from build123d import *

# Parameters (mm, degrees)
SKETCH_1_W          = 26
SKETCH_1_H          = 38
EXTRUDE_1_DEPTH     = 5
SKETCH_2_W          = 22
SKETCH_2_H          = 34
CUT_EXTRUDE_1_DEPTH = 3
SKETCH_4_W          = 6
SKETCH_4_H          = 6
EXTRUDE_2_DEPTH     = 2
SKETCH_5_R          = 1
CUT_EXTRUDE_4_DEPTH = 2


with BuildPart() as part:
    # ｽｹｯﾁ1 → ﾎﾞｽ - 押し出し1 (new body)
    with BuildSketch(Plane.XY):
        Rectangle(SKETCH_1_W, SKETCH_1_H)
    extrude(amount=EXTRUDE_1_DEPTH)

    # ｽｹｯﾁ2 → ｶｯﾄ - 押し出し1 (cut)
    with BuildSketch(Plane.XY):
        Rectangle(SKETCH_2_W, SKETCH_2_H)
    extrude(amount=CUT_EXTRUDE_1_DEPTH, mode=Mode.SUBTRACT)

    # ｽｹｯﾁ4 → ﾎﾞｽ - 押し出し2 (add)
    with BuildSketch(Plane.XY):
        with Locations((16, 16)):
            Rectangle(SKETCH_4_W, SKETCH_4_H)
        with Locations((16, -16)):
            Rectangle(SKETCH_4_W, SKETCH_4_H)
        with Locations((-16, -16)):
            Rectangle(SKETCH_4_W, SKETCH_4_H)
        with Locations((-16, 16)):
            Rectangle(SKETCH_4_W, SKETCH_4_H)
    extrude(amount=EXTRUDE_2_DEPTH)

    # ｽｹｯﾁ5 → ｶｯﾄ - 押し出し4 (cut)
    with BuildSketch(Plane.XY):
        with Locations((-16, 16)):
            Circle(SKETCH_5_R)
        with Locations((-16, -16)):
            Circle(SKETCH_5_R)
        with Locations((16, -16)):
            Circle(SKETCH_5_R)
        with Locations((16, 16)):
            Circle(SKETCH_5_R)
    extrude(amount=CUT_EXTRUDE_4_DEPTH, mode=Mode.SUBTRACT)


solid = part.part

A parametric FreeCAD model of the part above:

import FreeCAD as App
import Part
import Sketcher


def add_polygon(sketch, points):
    """Adds a closed chain of lines whose ends are joined by coincident constraints."""
    first, n = sketch.GeometryCount, len(points)
    for a, b in zip(points, points[1:] + points[:1]):
        sketch.addGeometry(Part.LineSegment(App.Vector(*a, 0), App.Vector(*b, 0)), False)
    for i in range(n):
        sketch.addConstraint(Sketcher.Constraint("Coincident", first + i, 2, first + (i + 1) % n, 1))

doc = App.newDocument("Part")
params = doc.addObject("Spreadsheet::Sheet", "Params")
for row, (alias, value) in enumerate([
    ("sketch1_width", "26 mm"),
    ("sketch1_height", "38 mm"),
    ("pad1_length", "5 mm"),
    ("sketch2_width", "22 mm"),
    ("sketch2_height", "34 mm"),
    ("pocket1_length", "3 mm"),
    ("sketch3_width", "6 mm"),
    ("pad2_length", "2 mm"),
    ("sketch4_diameter", "2 mm"),
    ("pocket2_length", "2 mm"),
], start=1):
    params.set(f"A{row}", alias)
    params.set(f"B{row}", "=" + value)
    params.setAlias(f"B{row}", alias)

body = doc.addObject("PartDesign::Body", "Body")

# Sketch on XY plane
sketch1 = doc.addObject("Sketcher::SketchObject", "Sketch")
body.addObject(sketch1)
sketch1.AttachmentSupport = (doc.XY_Plane, [""])
sketch1.MapMode = "FlatFace"
add_polygon(sketch1, [(-13, 19), (-13, -19), (13, -19), (13, 19)])  # lines 0-3
sketch1.addConstraint(Sketcher.Constraint("Vertical", 0))
sketch1.addConstraint(Sketcher.Constraint("Horizontal", 1))
sketch1.addConstraint(Sketcher.Constraint("Vertical", 2))
sketch1.addConstraint(Sketcher.Constraint("Horizontal", 3))
sketch1.addConstraint(Sketcher.Constraint("Symmetric", 0, 2, 2, 2, -1, 1))
sketch1.addConstraint(Sketcher.Constraint("DistanceX", 1, 1, 1, 2, 26.0))
sketch1.addConstraint(Sketcher.Constraint("DistanceY", 0, 2, 0, 1, 38.0))
sketch1.setExpression("Constraints[9]", "Params.sketch1_width")
sketch1.setExpression("Constraints[10]", "Params.sketch1_height")
pad1 = doc.addObject("PartDesign::Pad", "Pad")
body.addObject(pad1)
pad1.Profile = sketch1
pad1.setExpression("Length", "Params.pad1_length")

# Sketch on XY plane
sketch2 = doc.addObject("Sketcher::SketchObject", "Sketch001")
body.addObject(sketch2)
sketch2.AttachmentSupport = (doc.XY_Plane, [""])
sketch2.MapMode = "FlatFace"
add_polygon(sketch2, [(-11, 17), (-11, -17), (11, -17), (11, 17)])  # lines 0-3
sketch2.addConstraint(Sketcher.Constraint("Vertical", 0))
sketch2.addConstraint(Sketcher.Constraint("Horizontal", 1))
sketch2.addConstraint(Sketcher.Constraint("Vertical", 2))
sketch2.addConstraint(Sketcher.Constraint("Horizontal", 3))
sketch2.addConstraint(Sketcher.Constraint("Symmetric", 0, 2, 2, 2, -1, 1))
sketch2.addConstraint(Sketcher.Constraint("DistanceX", 1, 1, 1, 2, 22.0))
sketch2.addConstraint(Sketcher.Constraint("DistanceY", 0, 2, 0, 1, 34.0))
sketch2.setExpression("Constraints[9]", "Params.sketch2_width")
sketch2.setExpression("Constraints[10]", "Params.sketch2_height")
pocket1 = doc.addObject("PartDesign::Pocket", "Pocket")
body.addObject(pocket1)
pocket1.Profile = sketch2
pocket1.setExpression("Length", "Params.pocket1_length")
pocket1.Reversed = True

# Sketch on XY plane
sketch3 = doc.addObject("Sketcher::SketchObject", "Sketch002")
body.addObject(sketch3)
sketch3.AttachmentSupport = (doc.XY_Plane, [""])
sketch3.MapMode = "FlatFace"
add_polygon(sketch3, [(13, 19), (13, 13), (19, 13), (19, 19)])  # lines 0-3
add_polygon(sketch3, [(13, -13), (13, -19), (19, -19), (19, -13)])  # lines 4-7
add_polygon(sketch3, [(-19, -13), (-19, -19), (-13, -19), (-13, -13)])  # lines 8-11
add_polygon(sketch3, [(-19, 19), (-19, 13), (-13, 13), (-13, 19)])  # lines 12-15
sketch3.addConstraint(Sketcher.Constraint("Vertical", 0))
sketch3.addConstraint(Sketcher.Constraint("Horizontal", 1))
sketch3.addConstraint(Sketcher.Constraint("Vertical", 2))
sketch3.addConstraint(Sketcher.Constraint("Horizontal", 3))
sketch3.addConstraint(Sketcher.Constraint("Vertical", 4))
sketch3.addConstraint(Sketcher.Constraint("Horizontal", 5))
sketch3.addConstraint(Sketcher.Constraint("Vertical", 6))
sketch3.addConstraint(Sketcher.Constraint("Horizontal", 7))
sketch3.addConstraint(Sketcher.Constraint("Vertical", 8))
sketch3.addConstraint(Sketcher.Constraint("Horizontal", 9))
sketch3.addConstraint(Sketcher.Constraint("Vertical", 10))
sketch3.addConstraint(Sketcher.Constraint("Horizontal", 11))
sketch3.addConstraint(Sketcher.Constraint("Vertical", 12))
sketch3.addConstraint(Sketcher.Constraint("Horizontal", 13))
sketch3.addConstraint(Sketcher.Constraint("Vertical", 14))
sketch3.addConstraint(Sketcher.Constraint("Horizontal", 15))
sketch3.addConstraint(Sketcher.Constraint("Symmetric", 2, 2, 8, 2, -1, 1))
sketch3.addConstraint(Sketcher.Constraint("Symmetric", 0, 2, 10, 2, -1, 1))
sketch3.addConstraint(Sketcher.Constraint("Symmetric", 6, 2, 12, 2, -1, 1))
sketch3.addConstraint(Sketcher.Constraint("Symmetric", 4, 2, 14, 2, -1, 1))
sketch3.addConstraint(Sketcher.Constraint("Symmetric", 5, 2, 8, 2, -2))
sketch3.addConstraint(Sketcher.Constraint("Symmetric", 7, 2, 10, 2, -2))
sketch3.addConstraint(Sketcher.Constraint("Equal", 15, 0))
sketch3.addConstraint(Sketcher.Constraint("DistanceX", 1, 1, 1, 2, 6.0))
sketch3.addConstraint(Sketcher.Constraint("DistanceX", -1, 1, 0, 2, 13.0))
sketch3.addConstraint(Sketcher.Constraint("DistanceY", -1, 1, 0, 2, 13.0))
sketch3.setExpression("Constraints[39]", "Params.sketch3_width")
pad2 = doc.addObject("PartDesign::Pad", "Pad001")
body.addObject(pad2)
pad2.Profile = sketch3
pad2.setExpression("Length", "Params.pad2_length")

# Sketch on XY plane
sketch4 = doc.addObject("Sketcher::SketchObject", "Sketch003")
body.addObject(sketch4)
sketch4.AttachmentSupport = (doc.XY_Plane, [""])
sketch4.MapMode = "FlatFace"
sketch4.addGeometry(Part.Circle(App.Vector(-16, 16, 0), App.Vector(0, 0, 1), 1), False)
sketch4.addGeometry(Part.Circle(App.Vector(-16, -16, 0), App.Vector(0, 0, 1), 1), False)
sketch4.addGeometry(Part.Circle(App.Vector(16, -16, 0), App.Vector(0, 0, 1), 1), False)
sketch4.addGeometry(Part.Circle(App.Vector(16, 16, 0), App.Vector(0, 0, 1), 1), False)
sketch4.addConstraint(Sketcher.Constraint("Equal", 0, 1))
sketch4.addConstraint(Sketcher.Constraint("Equal", 1, 2))
sketch4.addConstraint(Sketcher.Constraint("Equal", 2, 3))
sketch4.addConstraint(Sketcher.Constraint("Symmetric", 0, 3, 2, 3, -1, 1))
sketch4.addConstraint(Sketcher.Constraint("Symmetric", 1, 3, 3, 3, -1, 1))
sketch4.addConstraint(Sketcher.Constraint("Symmetric", 1, 3, 2, 3, -2))
sketch4.addConstraint(Sketcher.Constraint("Diameter", 0, 2.0))
sketch4.addConstraint(Sketcher.Constraint("DistanceX", 0, 3, -1, 1, 16.0))
sketch4.addConstraint(Sketcher.Constraint("DistanceY", -1, 1, 0, 3, 16.0))
sketch4.setExpression("Constraints[6]", "Params.sketch4_diameter")
pocket2 = doc.addObject("PartDesign::Pocket", "Pocket001")
body.addObject(pocket2)
pocket2.Profile = sketch4
pocket2.setExpression("Length", "Params.pocket2_length")
pocket2.Reversed = True

doc.recompute()
